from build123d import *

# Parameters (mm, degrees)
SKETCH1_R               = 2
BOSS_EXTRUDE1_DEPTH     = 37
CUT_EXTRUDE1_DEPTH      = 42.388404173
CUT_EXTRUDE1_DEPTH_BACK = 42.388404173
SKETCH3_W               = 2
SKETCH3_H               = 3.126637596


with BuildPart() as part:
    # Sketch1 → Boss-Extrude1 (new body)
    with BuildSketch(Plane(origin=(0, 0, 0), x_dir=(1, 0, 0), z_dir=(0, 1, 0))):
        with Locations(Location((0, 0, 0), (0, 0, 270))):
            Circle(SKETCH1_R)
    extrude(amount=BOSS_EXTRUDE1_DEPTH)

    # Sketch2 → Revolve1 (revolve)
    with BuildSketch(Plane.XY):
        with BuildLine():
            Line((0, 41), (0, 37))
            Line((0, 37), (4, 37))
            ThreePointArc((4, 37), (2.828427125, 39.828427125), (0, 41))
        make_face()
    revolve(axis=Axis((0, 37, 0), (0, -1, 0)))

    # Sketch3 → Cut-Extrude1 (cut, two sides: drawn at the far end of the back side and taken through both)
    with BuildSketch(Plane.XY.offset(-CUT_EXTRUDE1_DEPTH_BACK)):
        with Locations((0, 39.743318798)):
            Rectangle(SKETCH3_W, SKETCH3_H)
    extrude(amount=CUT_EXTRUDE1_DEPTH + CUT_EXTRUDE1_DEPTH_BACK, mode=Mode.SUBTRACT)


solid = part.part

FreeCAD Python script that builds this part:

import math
import FreeCAD as App
import Part
import Sketcher

V = App.Vector
Q = App.Units.Quantity


def add_polygon(sketch, points):
    """Adds a closed chain of lines whose ends are joined by coincident constraints."""
    first, n = sketch.GeometryCount, len(points)
    for a, b in zip(points, points[1:] + points[:1]):
        sketch.addGeometry(Part.LineSegment(App.Vector(*a, 0), App.Vector(*b, 0)), False)
    for i in range(n):
        sketch.addConstraint(Sketcher.Constraint("Coincident", first + i, 2, first + (i + 1) % n, 1))

doc = App.newDocument("Part")
body = doc.addObject("PartDesign::Body", "Body")

sketch1 = doc.addObject("Sketcher::SketchObject", "Sketch")
body.addObject(sketch1)
sketch1.AttachmentSupport = (doc.XZ_Plane, [""])
sketch1.MapMode = "FlatFace"
sketch1.addGeometry(Part.Circle(V(0, 0, 0), V(0, 0, 1), 2), False)
sketch1.addConstraint(Sketcher.Constraint("Coincident", 0, 3, -1, 1))
sketch1.addConstraint(Sketcher.Constraint("Diameter", 0, Q("4 mm")))
pad1 = doc.addObject("PartDesign::Pad", "Pad")
body.addObject(pad1)
pad1.Profile = sketch1
pad1.Length = 37
pad1.Reversed = True

sketch2 = doc.addObject("Sketcher::SketchObject", "Sketch001")
body.addObject(sketch2)
sketch2.AttachmentSupport = (doc.XY_Plane, [""])
sketch2.MapMode = "FlatFace"
sketch2.addGeometry(Part.LineSegment(V(0, 41, 0), V(0, 37, 0)), False)
sketch2.addGeometry(Part.LineSegment(V(0, 37, 0), V(4, 37, 0)), False)
sketch2.addGeometry(Part.ArcOfCircle(Part.Circle(V(0, 37, 0), V(0, 0, 1), 4), math.radians(0), math.radians(90)), False)
sketch2.addConstraint(Sketcher.Constraint("Coincident", 0, 2, 1, 1))
sketch2.addConstraint(Sketcher.Constraint("Coincident", 1, 2, 2, 1))
sketch2.addConstraint(Sketcher.Constraint("Coincident", 2, 2, 0, 1))
sketch2.addConstraint(Sketcher.Constraint("Vertical", 0))
sketch2.addConstraint(Sketcher.Constraint("Horizontal", 1))
sketch2.addConstraint(Sketcher.Constraint("Coincident", 0, 2, 2, 3))
sketch2.addConstraint(Sketcher.Constraint("PointOnObject", 2, 3, -2))
sketch2.addConstraint(Sketcher.Constraint("Radius", 2, Q("4 mm")))
sketch2.addConstraint(Sketcher.Constraint("DistanceY", -1, 1, 2, 3, Q("37 mm")))
revolution = doc.addObject("PartDesign::Revolution", "Revolution")
body.addObject(revolution)
revolution.Profile = sketch2
revolution.ReferenceAxis = (sketch2, ["V_Axis"])
revolution.Angle = 360

sketch3 = doc.addObject("Sketcher::SketchObject", "Sketch002")
body.addObject(sketch3)
sketch3.AttachmentSupport = (doc.XY_Plane, [""])
sketch3.MapMode = "FlatFace"
add_polygon(sketch3, [(-1, 41.3), (-1, 38.2), (1, 38.2), (1, 41.3)])
sketch3.addConstraint(Sketcher.Constraint("Vertical", 0))
sketch3.addConstraint(Sketcher.Constraint("Horizontal", 1))
sketch3.addConstraint(Sketcher.Constraint("Vertical", 2))
sketch3.addConstraint(Sketcher.Constraint("Horizontal", 3))
sketch3.addConstraint(Sketcher.Constraint("DistanceX", 1, 1, 1, 2, Q("2 mm")))
sketch3.addConstraint(Sketcher.Constraint("DistanceX", 0, 2, -1, 1, Q("1 mm")))
sketch3.addConstraint(Sketcher.Constraint("DistanceY", -1, 1, 0, 2, Q("38.18 mm")))
sketch3.addConstraint(Sketcher.Constraint("DistanceY", 0, 2, 0, 1, Q("3.126638 mm")))
pocket1 = doc.addObject("PartDesign::Pocket", "Pocket")
body.addObject(pocket1)
pocket1.Profile = sketch3
pocket1.Type = "ThroughAll"
pocket1.Midplane = True

doc.recompute()
